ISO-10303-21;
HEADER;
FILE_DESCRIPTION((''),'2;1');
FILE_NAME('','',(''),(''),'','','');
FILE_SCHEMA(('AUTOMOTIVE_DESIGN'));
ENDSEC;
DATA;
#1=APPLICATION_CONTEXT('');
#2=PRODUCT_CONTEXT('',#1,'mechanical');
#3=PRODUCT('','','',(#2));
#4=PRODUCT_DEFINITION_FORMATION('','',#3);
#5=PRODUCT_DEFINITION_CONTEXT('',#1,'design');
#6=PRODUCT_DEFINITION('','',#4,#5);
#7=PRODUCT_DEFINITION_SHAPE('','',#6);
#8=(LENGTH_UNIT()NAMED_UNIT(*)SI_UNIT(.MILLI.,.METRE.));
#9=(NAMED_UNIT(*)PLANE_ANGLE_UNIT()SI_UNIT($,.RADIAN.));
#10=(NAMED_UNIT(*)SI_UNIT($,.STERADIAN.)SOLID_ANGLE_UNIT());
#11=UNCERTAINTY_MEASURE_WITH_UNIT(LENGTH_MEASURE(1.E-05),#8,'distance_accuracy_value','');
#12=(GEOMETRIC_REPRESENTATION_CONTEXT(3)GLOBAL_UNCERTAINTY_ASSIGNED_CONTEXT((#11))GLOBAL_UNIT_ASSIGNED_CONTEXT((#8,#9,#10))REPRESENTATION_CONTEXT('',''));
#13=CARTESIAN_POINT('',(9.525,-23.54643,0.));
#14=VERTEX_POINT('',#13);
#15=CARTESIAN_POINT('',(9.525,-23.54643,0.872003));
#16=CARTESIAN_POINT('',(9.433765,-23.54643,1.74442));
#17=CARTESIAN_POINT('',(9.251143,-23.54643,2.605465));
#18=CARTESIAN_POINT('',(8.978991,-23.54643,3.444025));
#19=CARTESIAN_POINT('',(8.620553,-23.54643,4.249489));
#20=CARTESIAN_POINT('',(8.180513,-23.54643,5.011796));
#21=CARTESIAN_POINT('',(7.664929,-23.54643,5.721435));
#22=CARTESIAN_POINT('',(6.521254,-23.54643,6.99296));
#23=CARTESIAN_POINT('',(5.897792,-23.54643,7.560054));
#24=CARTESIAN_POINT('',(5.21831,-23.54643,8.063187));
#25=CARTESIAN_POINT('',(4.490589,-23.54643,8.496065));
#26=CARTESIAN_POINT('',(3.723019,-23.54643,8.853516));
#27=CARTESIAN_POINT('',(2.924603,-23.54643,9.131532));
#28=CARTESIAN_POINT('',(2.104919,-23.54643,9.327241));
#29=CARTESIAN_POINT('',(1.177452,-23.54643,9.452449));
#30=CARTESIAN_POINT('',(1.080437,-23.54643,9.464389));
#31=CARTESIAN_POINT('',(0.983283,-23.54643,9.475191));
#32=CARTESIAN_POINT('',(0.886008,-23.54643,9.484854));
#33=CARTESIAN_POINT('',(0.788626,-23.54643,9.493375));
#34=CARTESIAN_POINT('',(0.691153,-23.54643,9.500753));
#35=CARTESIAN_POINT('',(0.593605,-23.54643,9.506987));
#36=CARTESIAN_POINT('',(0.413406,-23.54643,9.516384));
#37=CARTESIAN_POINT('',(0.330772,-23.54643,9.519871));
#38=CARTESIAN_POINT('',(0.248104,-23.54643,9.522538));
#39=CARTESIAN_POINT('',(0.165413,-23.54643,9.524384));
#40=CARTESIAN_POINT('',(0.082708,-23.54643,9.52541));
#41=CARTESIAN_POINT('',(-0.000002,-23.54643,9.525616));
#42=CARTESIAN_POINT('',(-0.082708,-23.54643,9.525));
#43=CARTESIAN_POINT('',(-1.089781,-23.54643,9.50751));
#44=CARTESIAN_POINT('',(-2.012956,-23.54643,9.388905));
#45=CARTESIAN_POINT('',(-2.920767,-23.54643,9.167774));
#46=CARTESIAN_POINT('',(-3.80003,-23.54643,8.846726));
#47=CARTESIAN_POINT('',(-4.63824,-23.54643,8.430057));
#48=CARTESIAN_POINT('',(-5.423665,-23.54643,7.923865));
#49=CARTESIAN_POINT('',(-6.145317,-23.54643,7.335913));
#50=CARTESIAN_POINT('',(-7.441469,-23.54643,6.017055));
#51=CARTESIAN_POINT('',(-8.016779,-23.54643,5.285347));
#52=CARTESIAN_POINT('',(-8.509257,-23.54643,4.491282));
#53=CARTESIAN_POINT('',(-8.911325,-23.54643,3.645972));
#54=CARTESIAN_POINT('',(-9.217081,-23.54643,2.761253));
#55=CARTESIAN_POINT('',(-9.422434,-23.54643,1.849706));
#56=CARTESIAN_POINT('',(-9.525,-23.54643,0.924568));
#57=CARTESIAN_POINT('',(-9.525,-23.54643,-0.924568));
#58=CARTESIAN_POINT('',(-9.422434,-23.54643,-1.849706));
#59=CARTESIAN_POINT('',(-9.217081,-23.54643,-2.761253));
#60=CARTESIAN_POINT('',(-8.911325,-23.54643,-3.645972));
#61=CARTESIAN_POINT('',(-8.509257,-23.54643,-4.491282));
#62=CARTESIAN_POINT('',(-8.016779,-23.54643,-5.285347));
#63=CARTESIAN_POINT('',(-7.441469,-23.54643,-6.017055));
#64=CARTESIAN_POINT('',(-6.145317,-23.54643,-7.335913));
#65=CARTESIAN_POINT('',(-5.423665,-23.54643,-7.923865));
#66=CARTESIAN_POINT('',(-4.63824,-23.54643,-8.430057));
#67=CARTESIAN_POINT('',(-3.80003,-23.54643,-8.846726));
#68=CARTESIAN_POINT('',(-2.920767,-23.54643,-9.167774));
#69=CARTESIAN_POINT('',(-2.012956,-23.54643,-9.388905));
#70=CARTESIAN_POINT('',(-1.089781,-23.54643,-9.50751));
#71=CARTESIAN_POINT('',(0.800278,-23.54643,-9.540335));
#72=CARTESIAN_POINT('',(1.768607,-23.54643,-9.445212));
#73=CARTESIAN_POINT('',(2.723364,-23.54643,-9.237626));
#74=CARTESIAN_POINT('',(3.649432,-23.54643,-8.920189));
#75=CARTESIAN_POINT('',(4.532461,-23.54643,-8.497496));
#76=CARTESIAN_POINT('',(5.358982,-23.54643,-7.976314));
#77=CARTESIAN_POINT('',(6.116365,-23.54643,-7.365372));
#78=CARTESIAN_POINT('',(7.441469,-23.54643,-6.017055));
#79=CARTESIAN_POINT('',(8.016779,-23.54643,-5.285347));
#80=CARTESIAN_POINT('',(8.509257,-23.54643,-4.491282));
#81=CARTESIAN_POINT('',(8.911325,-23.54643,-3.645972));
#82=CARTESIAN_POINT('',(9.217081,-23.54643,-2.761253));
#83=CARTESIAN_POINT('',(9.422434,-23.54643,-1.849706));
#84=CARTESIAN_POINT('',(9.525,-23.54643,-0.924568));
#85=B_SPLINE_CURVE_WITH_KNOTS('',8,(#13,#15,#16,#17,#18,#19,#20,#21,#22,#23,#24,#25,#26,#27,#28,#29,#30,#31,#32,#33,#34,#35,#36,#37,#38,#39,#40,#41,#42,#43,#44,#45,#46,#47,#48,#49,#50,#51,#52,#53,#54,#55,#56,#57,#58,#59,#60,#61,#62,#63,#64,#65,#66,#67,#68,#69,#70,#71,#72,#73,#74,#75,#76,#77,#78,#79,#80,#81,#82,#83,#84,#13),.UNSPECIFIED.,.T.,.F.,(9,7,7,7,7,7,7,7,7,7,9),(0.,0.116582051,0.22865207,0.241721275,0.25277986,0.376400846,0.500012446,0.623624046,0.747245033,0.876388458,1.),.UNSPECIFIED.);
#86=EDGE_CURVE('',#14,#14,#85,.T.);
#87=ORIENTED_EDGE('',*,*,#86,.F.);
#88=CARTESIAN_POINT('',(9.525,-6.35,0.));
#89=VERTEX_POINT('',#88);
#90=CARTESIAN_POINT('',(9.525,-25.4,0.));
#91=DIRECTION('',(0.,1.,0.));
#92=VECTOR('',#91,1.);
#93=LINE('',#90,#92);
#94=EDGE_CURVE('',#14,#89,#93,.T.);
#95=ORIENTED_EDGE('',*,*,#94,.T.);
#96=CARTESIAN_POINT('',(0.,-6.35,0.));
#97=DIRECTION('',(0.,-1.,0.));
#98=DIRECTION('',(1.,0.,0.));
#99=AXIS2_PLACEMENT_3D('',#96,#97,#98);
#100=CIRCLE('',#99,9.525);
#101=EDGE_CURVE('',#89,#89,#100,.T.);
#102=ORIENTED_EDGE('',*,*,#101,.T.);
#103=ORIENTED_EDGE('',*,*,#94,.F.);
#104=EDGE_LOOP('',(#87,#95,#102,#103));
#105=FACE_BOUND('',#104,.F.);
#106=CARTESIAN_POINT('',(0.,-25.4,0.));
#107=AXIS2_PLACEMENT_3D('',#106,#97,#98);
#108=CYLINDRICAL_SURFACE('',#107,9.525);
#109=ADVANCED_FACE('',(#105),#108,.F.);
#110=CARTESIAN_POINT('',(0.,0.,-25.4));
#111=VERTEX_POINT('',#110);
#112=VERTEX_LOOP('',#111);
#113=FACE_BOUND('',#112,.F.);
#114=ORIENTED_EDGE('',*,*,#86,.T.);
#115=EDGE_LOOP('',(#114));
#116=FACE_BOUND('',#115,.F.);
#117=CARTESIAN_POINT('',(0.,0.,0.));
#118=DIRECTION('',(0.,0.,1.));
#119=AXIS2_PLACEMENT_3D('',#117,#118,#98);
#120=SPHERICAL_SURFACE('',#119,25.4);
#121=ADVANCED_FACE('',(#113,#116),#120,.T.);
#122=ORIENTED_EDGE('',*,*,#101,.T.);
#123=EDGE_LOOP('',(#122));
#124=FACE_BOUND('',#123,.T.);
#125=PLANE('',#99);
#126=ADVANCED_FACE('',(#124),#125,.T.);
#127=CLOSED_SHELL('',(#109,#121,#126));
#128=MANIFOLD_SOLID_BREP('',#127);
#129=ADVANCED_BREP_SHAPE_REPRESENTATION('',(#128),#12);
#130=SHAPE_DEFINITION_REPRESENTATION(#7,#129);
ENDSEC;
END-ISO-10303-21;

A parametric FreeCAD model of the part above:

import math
import FreeCAD as App
import Part
import Sketcher
Q = App.Units.Quantity

doc = App.newDocument("Part")
body = doc.addObject("PartDesign::Body", "Body")

sketch1 = body.newObject("Sketcher::SketchObject", "Sketch")
sketch1.AttachmentSupport = (doc.getObject("XZ_Plane"), [""])
sketch1.MapMode = "FlatFace"
sketch1.addGeometry([
    Part.LineSegment(App.Vector(0, 25, 0), App.Vector(0, -25, 0)),
    Part.ArcOfCircle(Part.Circle(App.Vector(0, 0, 0), App.Vector(0, 0, 1), 25), math.radians(-90), math.radians(90)),
], False)
sketch1.addConstraint([
    Sketcher.Constraint("Coincident", 0, 1, 1, 2),
    Sketcher.Constraint("Coincident", 1, 1, 0, 2),
    Sketcher.Constraint("Vertical", 0),
    Sketcher.Constraint("Coincident", 1, 3, -1, 1),
    Sketcher.Constraint("PointOnObject", 0, 1, -2),
    Sketcher.Constraint("Radius", 1, Q("1 in")),
])
revolution = body.newObject("PartDesign::Revolution", "Revolution")
revolution.Profile = sketch1
revolution.ReferenceAxis = (sketch1, ["V_Axis"])
revolution.Angle = 360

sketch2 = body.newObject("Sketcher::SketchObject", "Sketch001")
sketch2.AttachmentSupport = (doc.getObject("XZ_Plane"), [""])
sketch2.MapMode = "FlatFace"
sketch2.AttachmentOffset = App.Placement(App.Vector(0, 0, 1 * 25.4), App.Rotation())
sketch2.addGeometry(Part.Circle(App.Vector(0, 0, 0), App.Vector(0, 0, 1), 10), False)
sketch2.addConstraint([
    Sketcher.Constraint("Coincident", 0, 3, -1, 1),
    Sketcher.Constraint("Diameter", 0, Q("0.75 in")),
])
pocket1 = body.newObject("PartDesign::Pocket", "Pocket")
pocket1.Profile = sketch2
pocket1.Length = Q("0.75 in")

doc.recompute()
